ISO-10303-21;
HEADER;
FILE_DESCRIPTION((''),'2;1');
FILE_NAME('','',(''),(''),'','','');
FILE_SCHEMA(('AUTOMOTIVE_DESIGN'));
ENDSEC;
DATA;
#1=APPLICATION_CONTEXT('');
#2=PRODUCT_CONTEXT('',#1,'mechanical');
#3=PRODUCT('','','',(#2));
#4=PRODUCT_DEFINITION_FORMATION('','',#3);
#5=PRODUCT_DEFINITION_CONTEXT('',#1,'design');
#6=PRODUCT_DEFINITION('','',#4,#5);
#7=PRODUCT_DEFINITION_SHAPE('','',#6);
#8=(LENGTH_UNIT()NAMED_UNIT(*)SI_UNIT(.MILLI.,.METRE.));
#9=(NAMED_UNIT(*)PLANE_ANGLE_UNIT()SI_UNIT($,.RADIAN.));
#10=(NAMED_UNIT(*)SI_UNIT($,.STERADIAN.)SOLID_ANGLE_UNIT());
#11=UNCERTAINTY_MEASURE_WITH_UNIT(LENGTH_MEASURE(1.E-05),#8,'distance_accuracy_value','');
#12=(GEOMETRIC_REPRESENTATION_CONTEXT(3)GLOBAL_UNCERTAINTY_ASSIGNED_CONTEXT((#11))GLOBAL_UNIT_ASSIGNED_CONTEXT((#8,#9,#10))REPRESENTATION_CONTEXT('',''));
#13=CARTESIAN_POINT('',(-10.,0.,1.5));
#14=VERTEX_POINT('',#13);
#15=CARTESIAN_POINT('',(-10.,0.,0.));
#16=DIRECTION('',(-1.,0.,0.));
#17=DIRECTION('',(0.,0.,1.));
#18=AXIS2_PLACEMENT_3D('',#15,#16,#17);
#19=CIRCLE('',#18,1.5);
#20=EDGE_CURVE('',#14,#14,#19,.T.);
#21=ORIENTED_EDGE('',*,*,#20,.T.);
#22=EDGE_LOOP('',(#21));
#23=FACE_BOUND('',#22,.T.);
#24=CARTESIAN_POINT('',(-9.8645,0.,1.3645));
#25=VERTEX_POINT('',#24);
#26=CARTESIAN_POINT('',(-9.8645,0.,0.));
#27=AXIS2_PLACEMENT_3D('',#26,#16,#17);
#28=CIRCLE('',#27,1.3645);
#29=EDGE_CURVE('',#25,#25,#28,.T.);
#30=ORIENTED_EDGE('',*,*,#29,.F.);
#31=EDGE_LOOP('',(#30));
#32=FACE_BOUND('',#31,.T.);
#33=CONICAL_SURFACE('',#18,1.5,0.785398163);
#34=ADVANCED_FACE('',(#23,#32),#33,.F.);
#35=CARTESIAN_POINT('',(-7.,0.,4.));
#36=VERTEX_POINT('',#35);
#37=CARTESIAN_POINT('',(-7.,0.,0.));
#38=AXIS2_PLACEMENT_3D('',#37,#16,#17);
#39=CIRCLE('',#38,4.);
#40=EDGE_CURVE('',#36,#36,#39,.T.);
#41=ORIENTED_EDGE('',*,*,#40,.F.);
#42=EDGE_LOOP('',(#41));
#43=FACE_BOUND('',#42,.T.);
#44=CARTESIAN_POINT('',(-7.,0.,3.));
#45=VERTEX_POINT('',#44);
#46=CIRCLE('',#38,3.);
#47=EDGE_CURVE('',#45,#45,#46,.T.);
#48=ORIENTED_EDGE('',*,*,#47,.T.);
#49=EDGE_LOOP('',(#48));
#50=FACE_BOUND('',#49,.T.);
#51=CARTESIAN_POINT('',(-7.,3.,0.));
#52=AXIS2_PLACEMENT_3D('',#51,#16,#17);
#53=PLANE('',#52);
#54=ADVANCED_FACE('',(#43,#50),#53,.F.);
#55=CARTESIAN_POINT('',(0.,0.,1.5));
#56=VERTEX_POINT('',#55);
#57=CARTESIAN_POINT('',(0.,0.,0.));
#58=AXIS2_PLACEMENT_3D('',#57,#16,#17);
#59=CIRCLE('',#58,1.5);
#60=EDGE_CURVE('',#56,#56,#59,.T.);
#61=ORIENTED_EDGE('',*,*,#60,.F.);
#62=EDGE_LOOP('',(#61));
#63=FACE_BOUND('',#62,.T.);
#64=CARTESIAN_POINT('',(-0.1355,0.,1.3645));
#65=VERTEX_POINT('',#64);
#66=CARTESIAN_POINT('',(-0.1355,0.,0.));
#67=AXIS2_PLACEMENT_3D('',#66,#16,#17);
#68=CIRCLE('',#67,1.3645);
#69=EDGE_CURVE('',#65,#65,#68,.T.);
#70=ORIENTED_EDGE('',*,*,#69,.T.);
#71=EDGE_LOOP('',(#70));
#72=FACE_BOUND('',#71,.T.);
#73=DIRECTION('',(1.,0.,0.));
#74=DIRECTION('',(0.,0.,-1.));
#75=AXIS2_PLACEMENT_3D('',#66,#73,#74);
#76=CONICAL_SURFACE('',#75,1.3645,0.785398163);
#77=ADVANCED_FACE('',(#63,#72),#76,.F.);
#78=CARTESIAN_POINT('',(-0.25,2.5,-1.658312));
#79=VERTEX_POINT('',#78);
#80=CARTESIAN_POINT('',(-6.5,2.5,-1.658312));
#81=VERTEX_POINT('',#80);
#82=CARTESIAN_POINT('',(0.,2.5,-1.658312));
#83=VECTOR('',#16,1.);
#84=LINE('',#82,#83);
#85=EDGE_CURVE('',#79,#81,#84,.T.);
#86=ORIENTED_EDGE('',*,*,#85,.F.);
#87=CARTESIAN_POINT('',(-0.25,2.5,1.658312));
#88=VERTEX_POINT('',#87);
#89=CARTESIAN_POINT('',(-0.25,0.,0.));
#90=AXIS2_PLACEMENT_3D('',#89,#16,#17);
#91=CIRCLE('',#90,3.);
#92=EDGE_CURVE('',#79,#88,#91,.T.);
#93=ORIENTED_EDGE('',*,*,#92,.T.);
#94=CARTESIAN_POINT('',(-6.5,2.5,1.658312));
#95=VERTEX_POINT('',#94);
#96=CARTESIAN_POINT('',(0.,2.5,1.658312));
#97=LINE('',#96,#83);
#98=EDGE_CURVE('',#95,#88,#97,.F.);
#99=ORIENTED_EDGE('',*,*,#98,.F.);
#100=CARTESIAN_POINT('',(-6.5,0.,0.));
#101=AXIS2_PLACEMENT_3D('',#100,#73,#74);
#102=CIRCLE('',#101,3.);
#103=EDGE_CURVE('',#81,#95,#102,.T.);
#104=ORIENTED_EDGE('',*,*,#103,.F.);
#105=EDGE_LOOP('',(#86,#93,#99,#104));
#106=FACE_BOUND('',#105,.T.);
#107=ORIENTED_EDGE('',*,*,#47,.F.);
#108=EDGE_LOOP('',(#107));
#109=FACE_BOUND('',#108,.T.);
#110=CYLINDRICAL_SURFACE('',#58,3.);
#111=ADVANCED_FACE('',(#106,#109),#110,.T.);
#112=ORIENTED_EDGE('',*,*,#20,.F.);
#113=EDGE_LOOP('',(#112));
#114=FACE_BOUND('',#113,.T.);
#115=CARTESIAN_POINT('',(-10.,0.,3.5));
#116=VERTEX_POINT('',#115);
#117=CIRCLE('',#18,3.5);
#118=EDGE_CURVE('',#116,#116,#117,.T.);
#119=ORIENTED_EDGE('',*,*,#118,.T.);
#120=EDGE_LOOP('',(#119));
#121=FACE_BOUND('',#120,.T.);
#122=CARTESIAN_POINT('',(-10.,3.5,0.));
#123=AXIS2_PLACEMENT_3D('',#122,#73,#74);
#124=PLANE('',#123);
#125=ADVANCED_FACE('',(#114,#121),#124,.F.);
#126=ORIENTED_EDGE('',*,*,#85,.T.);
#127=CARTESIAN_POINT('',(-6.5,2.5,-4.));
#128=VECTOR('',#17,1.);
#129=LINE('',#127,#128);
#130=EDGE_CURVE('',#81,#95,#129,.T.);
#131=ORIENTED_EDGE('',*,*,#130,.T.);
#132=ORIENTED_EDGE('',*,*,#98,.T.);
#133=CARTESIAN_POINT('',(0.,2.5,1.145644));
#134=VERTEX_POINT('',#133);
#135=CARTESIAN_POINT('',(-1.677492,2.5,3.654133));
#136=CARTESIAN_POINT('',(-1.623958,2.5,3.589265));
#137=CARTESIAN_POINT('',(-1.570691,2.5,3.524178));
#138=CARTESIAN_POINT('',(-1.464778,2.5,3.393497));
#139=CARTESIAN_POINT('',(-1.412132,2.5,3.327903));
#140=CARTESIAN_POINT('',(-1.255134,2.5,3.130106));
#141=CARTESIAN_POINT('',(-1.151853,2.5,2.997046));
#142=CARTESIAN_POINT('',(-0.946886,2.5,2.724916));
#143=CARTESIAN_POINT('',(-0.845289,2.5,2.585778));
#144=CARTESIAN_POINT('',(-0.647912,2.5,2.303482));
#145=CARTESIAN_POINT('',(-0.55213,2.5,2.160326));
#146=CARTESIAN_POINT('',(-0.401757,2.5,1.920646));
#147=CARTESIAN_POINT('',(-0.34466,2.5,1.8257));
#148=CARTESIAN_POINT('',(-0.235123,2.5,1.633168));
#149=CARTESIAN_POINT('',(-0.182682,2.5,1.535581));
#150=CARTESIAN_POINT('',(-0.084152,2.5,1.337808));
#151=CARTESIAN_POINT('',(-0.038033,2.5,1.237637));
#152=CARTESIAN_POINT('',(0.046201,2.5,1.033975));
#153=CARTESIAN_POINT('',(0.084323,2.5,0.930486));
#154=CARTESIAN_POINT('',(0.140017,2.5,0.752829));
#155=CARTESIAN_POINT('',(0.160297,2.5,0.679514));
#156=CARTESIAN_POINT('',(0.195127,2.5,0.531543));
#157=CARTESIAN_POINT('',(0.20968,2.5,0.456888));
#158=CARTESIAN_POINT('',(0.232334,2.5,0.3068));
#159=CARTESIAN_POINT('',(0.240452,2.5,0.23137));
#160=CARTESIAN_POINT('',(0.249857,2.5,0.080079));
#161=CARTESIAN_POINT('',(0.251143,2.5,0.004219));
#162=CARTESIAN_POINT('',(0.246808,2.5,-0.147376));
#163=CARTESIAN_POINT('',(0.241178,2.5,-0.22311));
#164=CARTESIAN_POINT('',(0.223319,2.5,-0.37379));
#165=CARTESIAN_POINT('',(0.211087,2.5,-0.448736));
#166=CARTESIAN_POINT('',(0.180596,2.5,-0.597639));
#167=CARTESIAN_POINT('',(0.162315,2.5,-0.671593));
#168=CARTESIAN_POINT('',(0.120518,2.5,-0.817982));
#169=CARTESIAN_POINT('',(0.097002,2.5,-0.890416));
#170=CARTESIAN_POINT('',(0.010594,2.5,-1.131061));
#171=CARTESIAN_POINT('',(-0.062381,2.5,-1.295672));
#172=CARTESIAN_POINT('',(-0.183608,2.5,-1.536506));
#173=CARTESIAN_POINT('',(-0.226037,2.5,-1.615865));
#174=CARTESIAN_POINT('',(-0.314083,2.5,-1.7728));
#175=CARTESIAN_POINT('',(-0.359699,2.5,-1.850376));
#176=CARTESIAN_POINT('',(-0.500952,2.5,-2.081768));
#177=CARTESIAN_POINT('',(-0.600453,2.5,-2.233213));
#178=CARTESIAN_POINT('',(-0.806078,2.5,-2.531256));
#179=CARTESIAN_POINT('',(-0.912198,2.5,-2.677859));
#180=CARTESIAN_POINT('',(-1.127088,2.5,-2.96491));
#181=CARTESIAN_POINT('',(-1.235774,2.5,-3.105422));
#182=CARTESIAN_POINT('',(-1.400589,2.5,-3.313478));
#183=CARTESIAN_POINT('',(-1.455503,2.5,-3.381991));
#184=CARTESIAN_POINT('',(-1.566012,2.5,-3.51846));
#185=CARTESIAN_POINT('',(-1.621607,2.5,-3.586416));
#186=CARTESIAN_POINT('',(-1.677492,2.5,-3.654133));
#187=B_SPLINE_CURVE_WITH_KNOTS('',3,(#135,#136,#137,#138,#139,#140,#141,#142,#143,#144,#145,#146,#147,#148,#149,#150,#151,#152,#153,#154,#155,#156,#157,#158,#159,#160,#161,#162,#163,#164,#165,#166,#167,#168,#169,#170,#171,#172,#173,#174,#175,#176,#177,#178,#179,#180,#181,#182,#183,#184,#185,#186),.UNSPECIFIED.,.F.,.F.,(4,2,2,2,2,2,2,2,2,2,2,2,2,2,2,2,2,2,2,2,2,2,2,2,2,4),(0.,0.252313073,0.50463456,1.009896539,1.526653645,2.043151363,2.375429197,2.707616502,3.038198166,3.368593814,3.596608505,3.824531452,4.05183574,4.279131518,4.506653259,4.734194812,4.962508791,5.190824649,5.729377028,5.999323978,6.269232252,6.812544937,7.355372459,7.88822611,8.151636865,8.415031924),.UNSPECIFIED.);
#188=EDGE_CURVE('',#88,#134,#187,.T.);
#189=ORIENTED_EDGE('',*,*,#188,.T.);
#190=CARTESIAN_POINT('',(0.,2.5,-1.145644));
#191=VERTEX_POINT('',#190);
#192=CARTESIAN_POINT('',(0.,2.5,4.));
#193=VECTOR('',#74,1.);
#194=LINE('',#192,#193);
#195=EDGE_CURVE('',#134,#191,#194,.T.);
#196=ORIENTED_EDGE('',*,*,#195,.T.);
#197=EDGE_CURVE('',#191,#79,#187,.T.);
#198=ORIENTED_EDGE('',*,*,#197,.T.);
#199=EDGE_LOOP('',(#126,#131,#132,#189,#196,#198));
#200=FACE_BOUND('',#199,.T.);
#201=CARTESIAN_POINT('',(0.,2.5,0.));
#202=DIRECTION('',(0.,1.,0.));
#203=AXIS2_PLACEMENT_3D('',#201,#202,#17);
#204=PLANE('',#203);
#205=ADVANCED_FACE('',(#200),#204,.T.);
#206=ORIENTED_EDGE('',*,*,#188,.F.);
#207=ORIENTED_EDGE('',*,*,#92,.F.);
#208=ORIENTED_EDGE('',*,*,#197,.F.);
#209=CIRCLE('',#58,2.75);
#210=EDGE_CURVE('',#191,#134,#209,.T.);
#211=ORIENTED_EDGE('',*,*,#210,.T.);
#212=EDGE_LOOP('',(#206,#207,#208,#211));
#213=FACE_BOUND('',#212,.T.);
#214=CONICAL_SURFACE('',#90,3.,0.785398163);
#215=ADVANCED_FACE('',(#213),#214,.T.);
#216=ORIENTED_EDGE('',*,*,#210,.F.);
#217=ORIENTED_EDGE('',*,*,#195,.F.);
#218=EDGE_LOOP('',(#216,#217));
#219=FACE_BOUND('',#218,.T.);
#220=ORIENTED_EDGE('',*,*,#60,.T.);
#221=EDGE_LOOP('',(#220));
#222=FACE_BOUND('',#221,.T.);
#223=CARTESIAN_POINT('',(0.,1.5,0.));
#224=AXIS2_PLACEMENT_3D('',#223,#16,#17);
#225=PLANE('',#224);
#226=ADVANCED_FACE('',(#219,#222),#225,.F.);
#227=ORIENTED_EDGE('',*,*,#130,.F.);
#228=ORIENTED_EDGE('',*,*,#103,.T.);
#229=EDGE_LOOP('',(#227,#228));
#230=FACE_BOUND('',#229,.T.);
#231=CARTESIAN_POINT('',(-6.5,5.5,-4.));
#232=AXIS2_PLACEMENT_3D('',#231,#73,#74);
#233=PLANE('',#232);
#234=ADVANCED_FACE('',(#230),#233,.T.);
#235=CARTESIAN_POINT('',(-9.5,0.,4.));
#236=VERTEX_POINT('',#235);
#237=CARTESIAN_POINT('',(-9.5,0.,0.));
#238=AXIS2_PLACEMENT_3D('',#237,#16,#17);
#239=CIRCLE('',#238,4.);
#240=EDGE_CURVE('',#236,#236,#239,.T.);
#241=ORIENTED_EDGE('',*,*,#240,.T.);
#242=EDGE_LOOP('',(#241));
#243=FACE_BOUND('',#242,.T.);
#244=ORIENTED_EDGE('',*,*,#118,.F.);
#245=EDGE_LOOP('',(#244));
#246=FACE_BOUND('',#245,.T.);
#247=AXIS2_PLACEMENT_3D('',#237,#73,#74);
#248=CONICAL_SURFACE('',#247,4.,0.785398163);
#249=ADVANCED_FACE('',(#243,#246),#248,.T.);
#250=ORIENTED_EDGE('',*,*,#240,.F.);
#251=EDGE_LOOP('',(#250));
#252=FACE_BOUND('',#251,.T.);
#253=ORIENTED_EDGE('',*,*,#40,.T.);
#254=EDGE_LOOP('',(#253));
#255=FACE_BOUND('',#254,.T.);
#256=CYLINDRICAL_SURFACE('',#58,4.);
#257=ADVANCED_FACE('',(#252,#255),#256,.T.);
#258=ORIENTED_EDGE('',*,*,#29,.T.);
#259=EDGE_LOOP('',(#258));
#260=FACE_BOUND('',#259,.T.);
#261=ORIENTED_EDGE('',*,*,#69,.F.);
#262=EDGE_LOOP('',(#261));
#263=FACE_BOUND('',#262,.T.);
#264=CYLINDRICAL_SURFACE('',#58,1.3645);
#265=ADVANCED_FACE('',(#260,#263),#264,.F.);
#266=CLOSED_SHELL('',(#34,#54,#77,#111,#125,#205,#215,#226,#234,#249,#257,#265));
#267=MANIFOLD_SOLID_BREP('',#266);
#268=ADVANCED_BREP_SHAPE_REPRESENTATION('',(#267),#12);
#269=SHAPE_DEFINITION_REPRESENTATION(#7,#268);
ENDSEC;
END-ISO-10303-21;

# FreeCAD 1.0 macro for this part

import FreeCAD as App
import Part
import Sketcher

V = App.Vector
Q = App.Units.Quantity

doc = App.newDocument("Part")
params = doc.addObject("Spreadsheet::Sheet", "Params")
for row, (alias, value) in enumerate([
    ("sketch1_width", "7 mm"),
    ("sketch1_height", "1 mm"),
    ("sketch1_height2", "2 mm"),
    ("sketch1_width2", "2.5 mm"),
    ("sketch1_height3", "1.5 mm"),
    ("revolution_angle", "360 deg"),
    ("sketch2_height", "8 mm"),
    ("sketch2_width", "6.5 mm"),
    ("pocket1_length", "3 mm"),
    ("sketch3_width", "0.25 mm"),
    ("groove_angle", "360 deg"),
], start=1):
    params.set(f"A{row}", alias)
    params.set(f"B{row}", "=" + value)
    params.setAlias(f"B{row}", alias)

body = doc.addObject("PartDesign::Body", "Body")

sketch1 = body.newObject("Sketcher::SketchObject", "Sketch")
sketch1.AttachmentSupport = (doc.getObject("XY_Plane"), [""])
sketch1.MapMode = "FlatFace"
sketch1.addGeometry([
    Part.LineSegment(V(-10, 1.5, 0), V(-9.8645, 1.3645, 0)),
    Part.LineSegment(V(-9.8645, 1.3645, 0), V(-0.1355, 1.3645, 0)),
    Part.LineSegment(V(-0.1355, 1.3645, 0), V(0, 1.5, 0)),
    Part.LineSegment(V(0, 1.5, 0), V(0, 3, 0)),
    Part.LineSegment(V(0, 3, 0), V(-7, 3, 0)),
    Part.LineSegment(V(-7, 3, 0), V(-7, 4, 0)),
    Part.LineSegment(V(-7, 4, 0), V(-9.5, 4, 0)),
    Part.LineSegment(V(-9.5, 4, 0), V(-10, 3.5, 0)),
    Part.LineSegment(V(-10, 3.5, 0), V(-10, 1.5, 0)),
], False)
sketch1.addConstraint([
    Sketcher.Constraint("Coincident", 0, 2, 1, 1),
    Sketcher.Constraint("Coincident", 1, 2, 2, 1),
    Sketcher.Constraint("Coincident", 2, 2, 3, 1),
    Sketcher.Constraint("Coincident", 3, 2, 4, 1),
    Sketcher.Constraint("Coincident", 4, 2, 5, 1),
    Sketcher.Constraint("Coincident", 5, 2, 6, 1),
    Sketcher.Constraint("Coincident", 6, 2, 7, 1),
    Sketcher.Constraint("Coincident", 7, 2, 8, 1),
    Sketcher.Constraint("Coincident", 8, 2, 0, 1),
    Sketcher.Constraint("Horizontal", 1),
    Sketcher.Constraint("Vertical", 3),
    Sketcher.Constraint("Horizontal", 4),
    Sketcher.Constraint("Vertical", 5),
    Sketcher.Constraint("Horizontal", 6),
    Sketcher.Constraint("Vertical", 8),
    Sketcher.Constraint("PointOnObject", 2, 2, -2),
    Sketcher.Constraint("Perpendicular", 0, 2),
    Sketcher.Constraint("Parallel", 2, 7),
    Sketcher.Constraint("Horizontal", 2, 2, 8, 2),
    Sketcher.Constraint("Equal", 0, 2),
    Sketcher.Constraint("DistanceX", 4, 2, 4, 1, Q("7 mm")),
    Sketcher.Constraint("DistanceY", 5, 1, 5, 2, Q("1 mm")),
    Sketcher.Constraint("DistanceY", 8, 2, 8, 1, Q("2 mm")),
    Sketcher.Constraint("DistanceX", 6, 2, 6, 1, Q("2.5 mm")),
    Sketcher.Constraint("DistanceY", 3, 1, 3, 2, Q("1.5 mm")),
    Sketcher.Constraint("DistanceY", -1, 1, 3, 2, Q("3 mm")),
    Sketcher.Constraint("DistanceX", 1, 1, 1, 2, Q("9.729 mm")),
])
sketch1.setExpression("Constraints[20]", "Params.sketch1_width")
sketch1.setExpression("Constraints[21]", "Params.sketch1_height")
sketch1.setExpression("Constraints[22]", "Params.sketch1_height2")
sketch1.setExpression("Constraints[23]", "Params.sketch1_width2")
sketch1.setExpression("Constraints[24]", "Params.sketch1_height3")
revolution = body.newObject("PartDesign::Revolution", "Revolution")
revolution.Profile = sketch1
revolution.ReferenceAxis = (sketch1, ["H_Axis"])
revolution.setExpression("Angle", "Params.revolution_angle")

sketch2 = body.newObject("Sketcher::SketchObject", "Sketch001")
sketch2.AttachmentSupport = (doc.getObject("XZ_Plane"), [""])
sketch2.MapMode = "FlatFace"
sketch2.AttachmentOffset = App.Placement(V(0, 0, -2.5), App.Rotation())
sketch2.addGeometry([
    Part.LineSegment(V(-6.5, -4, 0), V(-6.5, 4, 0)),
    Part.LineSegment(V(-6.5, 4, 0), V(0, 4, 0)),
    Part.LineSegment(V(0, 4, 0), V(0, -4, 0)),
    Part.LineSegment(V(0, -4, 0), V(-6.5, -4, 0)),
], False)
sketch2.addConstraint([
    Sketcher.Constraint("Coincident", 0, 2, 1, 1),
    Sketcher.Constraint("Coincident", 1, 2, 2, 1),
    Sketcher.Constraint("Coincident", 2, 2, 3, 1),
    Sketcher.Constraint("Coincident", 3, 2, 0, 1),
    Sketcher.Constraint("Vertical", 0),
    Sketcher.Constraint("Horizontal", 1),
    Sketcher.Constraint("Vertical", 2),
    Sketcher.Constraint("Horizontal", 3),
    Sketcher.Constraint("Symmetric", 1, 2, 2, 2, -1, 1),
    Sketcher.Constraint("DistanceY", 0, 1, 0, 2, Q("8 mm")),
    Sketcher.Constraint("DistanceX", 1, 1, 1, 2, Q("6.5 mm")),
])
sketch2.setExpression("Constraints[9]", "Params.sketch2_height")
sketch2.setExpression("Constraints[10]", "Params.sketch2_width")
pocket1 = body.newObject("PartDesign::Pocket", "Pocket")
pocket1.Profile = sketch2
pocket1.setExpression("Length", "Params.pocket1_length")

sketch3 = body.newObject("Sketcher::SketchObject", "Sketch002")
sketch3.AttachmentSupport = (doc.getObject("XY_Plane"), [""])
sketch3.MapMode = "FlatFace"
sketch3.addGeometry([
    Part.LineSegment(V(-0.25, 3, 0), V(0, 2.75, 0)),
    Part.LineSegment(V(0, 2.75, 0), V(0, 3, 0)),
    Part.LineSegment(V(0, 3, 0), V(-0.25, 3, 0)),
], False)
sketch3.addConstraint([
    Sketcher.Constraint("Coincident", 0, 2, 1, 1),
    Sketcher.Constraint("Coincident", 1, 2, 2, 1),
    Sketcher.Constraint("Coincident", 2, 2, 0, 1),
    Sketcher.Constraint("Vertical", 1),
    Sketcher.Constraint("Horizontal", 2),
    Sketcher.Constraint("PointOnObject", 0, 2, -2),
    Sketcher.Constraint("Equal", 2, 1),
    Sketcher.Constraint("DistanceY", -1, 1, 1, 2, Q("3 mm")),
    Sketcher.Constraint("DistanceX", 2, 2, 2, 1, Q("0.25 mm")),
])
sketch3.setExpression("Constraints[8]", "Params.sketch3_width")
groove = body.newObject("PartDesign::Groove", "Groove")
groove.Profile = sketch3
groove.ReferenceAxis = (sketch3, ["H_Axis"])
groove.setExpression("Angle", "Params.groove_angle")

doc.recompute()
